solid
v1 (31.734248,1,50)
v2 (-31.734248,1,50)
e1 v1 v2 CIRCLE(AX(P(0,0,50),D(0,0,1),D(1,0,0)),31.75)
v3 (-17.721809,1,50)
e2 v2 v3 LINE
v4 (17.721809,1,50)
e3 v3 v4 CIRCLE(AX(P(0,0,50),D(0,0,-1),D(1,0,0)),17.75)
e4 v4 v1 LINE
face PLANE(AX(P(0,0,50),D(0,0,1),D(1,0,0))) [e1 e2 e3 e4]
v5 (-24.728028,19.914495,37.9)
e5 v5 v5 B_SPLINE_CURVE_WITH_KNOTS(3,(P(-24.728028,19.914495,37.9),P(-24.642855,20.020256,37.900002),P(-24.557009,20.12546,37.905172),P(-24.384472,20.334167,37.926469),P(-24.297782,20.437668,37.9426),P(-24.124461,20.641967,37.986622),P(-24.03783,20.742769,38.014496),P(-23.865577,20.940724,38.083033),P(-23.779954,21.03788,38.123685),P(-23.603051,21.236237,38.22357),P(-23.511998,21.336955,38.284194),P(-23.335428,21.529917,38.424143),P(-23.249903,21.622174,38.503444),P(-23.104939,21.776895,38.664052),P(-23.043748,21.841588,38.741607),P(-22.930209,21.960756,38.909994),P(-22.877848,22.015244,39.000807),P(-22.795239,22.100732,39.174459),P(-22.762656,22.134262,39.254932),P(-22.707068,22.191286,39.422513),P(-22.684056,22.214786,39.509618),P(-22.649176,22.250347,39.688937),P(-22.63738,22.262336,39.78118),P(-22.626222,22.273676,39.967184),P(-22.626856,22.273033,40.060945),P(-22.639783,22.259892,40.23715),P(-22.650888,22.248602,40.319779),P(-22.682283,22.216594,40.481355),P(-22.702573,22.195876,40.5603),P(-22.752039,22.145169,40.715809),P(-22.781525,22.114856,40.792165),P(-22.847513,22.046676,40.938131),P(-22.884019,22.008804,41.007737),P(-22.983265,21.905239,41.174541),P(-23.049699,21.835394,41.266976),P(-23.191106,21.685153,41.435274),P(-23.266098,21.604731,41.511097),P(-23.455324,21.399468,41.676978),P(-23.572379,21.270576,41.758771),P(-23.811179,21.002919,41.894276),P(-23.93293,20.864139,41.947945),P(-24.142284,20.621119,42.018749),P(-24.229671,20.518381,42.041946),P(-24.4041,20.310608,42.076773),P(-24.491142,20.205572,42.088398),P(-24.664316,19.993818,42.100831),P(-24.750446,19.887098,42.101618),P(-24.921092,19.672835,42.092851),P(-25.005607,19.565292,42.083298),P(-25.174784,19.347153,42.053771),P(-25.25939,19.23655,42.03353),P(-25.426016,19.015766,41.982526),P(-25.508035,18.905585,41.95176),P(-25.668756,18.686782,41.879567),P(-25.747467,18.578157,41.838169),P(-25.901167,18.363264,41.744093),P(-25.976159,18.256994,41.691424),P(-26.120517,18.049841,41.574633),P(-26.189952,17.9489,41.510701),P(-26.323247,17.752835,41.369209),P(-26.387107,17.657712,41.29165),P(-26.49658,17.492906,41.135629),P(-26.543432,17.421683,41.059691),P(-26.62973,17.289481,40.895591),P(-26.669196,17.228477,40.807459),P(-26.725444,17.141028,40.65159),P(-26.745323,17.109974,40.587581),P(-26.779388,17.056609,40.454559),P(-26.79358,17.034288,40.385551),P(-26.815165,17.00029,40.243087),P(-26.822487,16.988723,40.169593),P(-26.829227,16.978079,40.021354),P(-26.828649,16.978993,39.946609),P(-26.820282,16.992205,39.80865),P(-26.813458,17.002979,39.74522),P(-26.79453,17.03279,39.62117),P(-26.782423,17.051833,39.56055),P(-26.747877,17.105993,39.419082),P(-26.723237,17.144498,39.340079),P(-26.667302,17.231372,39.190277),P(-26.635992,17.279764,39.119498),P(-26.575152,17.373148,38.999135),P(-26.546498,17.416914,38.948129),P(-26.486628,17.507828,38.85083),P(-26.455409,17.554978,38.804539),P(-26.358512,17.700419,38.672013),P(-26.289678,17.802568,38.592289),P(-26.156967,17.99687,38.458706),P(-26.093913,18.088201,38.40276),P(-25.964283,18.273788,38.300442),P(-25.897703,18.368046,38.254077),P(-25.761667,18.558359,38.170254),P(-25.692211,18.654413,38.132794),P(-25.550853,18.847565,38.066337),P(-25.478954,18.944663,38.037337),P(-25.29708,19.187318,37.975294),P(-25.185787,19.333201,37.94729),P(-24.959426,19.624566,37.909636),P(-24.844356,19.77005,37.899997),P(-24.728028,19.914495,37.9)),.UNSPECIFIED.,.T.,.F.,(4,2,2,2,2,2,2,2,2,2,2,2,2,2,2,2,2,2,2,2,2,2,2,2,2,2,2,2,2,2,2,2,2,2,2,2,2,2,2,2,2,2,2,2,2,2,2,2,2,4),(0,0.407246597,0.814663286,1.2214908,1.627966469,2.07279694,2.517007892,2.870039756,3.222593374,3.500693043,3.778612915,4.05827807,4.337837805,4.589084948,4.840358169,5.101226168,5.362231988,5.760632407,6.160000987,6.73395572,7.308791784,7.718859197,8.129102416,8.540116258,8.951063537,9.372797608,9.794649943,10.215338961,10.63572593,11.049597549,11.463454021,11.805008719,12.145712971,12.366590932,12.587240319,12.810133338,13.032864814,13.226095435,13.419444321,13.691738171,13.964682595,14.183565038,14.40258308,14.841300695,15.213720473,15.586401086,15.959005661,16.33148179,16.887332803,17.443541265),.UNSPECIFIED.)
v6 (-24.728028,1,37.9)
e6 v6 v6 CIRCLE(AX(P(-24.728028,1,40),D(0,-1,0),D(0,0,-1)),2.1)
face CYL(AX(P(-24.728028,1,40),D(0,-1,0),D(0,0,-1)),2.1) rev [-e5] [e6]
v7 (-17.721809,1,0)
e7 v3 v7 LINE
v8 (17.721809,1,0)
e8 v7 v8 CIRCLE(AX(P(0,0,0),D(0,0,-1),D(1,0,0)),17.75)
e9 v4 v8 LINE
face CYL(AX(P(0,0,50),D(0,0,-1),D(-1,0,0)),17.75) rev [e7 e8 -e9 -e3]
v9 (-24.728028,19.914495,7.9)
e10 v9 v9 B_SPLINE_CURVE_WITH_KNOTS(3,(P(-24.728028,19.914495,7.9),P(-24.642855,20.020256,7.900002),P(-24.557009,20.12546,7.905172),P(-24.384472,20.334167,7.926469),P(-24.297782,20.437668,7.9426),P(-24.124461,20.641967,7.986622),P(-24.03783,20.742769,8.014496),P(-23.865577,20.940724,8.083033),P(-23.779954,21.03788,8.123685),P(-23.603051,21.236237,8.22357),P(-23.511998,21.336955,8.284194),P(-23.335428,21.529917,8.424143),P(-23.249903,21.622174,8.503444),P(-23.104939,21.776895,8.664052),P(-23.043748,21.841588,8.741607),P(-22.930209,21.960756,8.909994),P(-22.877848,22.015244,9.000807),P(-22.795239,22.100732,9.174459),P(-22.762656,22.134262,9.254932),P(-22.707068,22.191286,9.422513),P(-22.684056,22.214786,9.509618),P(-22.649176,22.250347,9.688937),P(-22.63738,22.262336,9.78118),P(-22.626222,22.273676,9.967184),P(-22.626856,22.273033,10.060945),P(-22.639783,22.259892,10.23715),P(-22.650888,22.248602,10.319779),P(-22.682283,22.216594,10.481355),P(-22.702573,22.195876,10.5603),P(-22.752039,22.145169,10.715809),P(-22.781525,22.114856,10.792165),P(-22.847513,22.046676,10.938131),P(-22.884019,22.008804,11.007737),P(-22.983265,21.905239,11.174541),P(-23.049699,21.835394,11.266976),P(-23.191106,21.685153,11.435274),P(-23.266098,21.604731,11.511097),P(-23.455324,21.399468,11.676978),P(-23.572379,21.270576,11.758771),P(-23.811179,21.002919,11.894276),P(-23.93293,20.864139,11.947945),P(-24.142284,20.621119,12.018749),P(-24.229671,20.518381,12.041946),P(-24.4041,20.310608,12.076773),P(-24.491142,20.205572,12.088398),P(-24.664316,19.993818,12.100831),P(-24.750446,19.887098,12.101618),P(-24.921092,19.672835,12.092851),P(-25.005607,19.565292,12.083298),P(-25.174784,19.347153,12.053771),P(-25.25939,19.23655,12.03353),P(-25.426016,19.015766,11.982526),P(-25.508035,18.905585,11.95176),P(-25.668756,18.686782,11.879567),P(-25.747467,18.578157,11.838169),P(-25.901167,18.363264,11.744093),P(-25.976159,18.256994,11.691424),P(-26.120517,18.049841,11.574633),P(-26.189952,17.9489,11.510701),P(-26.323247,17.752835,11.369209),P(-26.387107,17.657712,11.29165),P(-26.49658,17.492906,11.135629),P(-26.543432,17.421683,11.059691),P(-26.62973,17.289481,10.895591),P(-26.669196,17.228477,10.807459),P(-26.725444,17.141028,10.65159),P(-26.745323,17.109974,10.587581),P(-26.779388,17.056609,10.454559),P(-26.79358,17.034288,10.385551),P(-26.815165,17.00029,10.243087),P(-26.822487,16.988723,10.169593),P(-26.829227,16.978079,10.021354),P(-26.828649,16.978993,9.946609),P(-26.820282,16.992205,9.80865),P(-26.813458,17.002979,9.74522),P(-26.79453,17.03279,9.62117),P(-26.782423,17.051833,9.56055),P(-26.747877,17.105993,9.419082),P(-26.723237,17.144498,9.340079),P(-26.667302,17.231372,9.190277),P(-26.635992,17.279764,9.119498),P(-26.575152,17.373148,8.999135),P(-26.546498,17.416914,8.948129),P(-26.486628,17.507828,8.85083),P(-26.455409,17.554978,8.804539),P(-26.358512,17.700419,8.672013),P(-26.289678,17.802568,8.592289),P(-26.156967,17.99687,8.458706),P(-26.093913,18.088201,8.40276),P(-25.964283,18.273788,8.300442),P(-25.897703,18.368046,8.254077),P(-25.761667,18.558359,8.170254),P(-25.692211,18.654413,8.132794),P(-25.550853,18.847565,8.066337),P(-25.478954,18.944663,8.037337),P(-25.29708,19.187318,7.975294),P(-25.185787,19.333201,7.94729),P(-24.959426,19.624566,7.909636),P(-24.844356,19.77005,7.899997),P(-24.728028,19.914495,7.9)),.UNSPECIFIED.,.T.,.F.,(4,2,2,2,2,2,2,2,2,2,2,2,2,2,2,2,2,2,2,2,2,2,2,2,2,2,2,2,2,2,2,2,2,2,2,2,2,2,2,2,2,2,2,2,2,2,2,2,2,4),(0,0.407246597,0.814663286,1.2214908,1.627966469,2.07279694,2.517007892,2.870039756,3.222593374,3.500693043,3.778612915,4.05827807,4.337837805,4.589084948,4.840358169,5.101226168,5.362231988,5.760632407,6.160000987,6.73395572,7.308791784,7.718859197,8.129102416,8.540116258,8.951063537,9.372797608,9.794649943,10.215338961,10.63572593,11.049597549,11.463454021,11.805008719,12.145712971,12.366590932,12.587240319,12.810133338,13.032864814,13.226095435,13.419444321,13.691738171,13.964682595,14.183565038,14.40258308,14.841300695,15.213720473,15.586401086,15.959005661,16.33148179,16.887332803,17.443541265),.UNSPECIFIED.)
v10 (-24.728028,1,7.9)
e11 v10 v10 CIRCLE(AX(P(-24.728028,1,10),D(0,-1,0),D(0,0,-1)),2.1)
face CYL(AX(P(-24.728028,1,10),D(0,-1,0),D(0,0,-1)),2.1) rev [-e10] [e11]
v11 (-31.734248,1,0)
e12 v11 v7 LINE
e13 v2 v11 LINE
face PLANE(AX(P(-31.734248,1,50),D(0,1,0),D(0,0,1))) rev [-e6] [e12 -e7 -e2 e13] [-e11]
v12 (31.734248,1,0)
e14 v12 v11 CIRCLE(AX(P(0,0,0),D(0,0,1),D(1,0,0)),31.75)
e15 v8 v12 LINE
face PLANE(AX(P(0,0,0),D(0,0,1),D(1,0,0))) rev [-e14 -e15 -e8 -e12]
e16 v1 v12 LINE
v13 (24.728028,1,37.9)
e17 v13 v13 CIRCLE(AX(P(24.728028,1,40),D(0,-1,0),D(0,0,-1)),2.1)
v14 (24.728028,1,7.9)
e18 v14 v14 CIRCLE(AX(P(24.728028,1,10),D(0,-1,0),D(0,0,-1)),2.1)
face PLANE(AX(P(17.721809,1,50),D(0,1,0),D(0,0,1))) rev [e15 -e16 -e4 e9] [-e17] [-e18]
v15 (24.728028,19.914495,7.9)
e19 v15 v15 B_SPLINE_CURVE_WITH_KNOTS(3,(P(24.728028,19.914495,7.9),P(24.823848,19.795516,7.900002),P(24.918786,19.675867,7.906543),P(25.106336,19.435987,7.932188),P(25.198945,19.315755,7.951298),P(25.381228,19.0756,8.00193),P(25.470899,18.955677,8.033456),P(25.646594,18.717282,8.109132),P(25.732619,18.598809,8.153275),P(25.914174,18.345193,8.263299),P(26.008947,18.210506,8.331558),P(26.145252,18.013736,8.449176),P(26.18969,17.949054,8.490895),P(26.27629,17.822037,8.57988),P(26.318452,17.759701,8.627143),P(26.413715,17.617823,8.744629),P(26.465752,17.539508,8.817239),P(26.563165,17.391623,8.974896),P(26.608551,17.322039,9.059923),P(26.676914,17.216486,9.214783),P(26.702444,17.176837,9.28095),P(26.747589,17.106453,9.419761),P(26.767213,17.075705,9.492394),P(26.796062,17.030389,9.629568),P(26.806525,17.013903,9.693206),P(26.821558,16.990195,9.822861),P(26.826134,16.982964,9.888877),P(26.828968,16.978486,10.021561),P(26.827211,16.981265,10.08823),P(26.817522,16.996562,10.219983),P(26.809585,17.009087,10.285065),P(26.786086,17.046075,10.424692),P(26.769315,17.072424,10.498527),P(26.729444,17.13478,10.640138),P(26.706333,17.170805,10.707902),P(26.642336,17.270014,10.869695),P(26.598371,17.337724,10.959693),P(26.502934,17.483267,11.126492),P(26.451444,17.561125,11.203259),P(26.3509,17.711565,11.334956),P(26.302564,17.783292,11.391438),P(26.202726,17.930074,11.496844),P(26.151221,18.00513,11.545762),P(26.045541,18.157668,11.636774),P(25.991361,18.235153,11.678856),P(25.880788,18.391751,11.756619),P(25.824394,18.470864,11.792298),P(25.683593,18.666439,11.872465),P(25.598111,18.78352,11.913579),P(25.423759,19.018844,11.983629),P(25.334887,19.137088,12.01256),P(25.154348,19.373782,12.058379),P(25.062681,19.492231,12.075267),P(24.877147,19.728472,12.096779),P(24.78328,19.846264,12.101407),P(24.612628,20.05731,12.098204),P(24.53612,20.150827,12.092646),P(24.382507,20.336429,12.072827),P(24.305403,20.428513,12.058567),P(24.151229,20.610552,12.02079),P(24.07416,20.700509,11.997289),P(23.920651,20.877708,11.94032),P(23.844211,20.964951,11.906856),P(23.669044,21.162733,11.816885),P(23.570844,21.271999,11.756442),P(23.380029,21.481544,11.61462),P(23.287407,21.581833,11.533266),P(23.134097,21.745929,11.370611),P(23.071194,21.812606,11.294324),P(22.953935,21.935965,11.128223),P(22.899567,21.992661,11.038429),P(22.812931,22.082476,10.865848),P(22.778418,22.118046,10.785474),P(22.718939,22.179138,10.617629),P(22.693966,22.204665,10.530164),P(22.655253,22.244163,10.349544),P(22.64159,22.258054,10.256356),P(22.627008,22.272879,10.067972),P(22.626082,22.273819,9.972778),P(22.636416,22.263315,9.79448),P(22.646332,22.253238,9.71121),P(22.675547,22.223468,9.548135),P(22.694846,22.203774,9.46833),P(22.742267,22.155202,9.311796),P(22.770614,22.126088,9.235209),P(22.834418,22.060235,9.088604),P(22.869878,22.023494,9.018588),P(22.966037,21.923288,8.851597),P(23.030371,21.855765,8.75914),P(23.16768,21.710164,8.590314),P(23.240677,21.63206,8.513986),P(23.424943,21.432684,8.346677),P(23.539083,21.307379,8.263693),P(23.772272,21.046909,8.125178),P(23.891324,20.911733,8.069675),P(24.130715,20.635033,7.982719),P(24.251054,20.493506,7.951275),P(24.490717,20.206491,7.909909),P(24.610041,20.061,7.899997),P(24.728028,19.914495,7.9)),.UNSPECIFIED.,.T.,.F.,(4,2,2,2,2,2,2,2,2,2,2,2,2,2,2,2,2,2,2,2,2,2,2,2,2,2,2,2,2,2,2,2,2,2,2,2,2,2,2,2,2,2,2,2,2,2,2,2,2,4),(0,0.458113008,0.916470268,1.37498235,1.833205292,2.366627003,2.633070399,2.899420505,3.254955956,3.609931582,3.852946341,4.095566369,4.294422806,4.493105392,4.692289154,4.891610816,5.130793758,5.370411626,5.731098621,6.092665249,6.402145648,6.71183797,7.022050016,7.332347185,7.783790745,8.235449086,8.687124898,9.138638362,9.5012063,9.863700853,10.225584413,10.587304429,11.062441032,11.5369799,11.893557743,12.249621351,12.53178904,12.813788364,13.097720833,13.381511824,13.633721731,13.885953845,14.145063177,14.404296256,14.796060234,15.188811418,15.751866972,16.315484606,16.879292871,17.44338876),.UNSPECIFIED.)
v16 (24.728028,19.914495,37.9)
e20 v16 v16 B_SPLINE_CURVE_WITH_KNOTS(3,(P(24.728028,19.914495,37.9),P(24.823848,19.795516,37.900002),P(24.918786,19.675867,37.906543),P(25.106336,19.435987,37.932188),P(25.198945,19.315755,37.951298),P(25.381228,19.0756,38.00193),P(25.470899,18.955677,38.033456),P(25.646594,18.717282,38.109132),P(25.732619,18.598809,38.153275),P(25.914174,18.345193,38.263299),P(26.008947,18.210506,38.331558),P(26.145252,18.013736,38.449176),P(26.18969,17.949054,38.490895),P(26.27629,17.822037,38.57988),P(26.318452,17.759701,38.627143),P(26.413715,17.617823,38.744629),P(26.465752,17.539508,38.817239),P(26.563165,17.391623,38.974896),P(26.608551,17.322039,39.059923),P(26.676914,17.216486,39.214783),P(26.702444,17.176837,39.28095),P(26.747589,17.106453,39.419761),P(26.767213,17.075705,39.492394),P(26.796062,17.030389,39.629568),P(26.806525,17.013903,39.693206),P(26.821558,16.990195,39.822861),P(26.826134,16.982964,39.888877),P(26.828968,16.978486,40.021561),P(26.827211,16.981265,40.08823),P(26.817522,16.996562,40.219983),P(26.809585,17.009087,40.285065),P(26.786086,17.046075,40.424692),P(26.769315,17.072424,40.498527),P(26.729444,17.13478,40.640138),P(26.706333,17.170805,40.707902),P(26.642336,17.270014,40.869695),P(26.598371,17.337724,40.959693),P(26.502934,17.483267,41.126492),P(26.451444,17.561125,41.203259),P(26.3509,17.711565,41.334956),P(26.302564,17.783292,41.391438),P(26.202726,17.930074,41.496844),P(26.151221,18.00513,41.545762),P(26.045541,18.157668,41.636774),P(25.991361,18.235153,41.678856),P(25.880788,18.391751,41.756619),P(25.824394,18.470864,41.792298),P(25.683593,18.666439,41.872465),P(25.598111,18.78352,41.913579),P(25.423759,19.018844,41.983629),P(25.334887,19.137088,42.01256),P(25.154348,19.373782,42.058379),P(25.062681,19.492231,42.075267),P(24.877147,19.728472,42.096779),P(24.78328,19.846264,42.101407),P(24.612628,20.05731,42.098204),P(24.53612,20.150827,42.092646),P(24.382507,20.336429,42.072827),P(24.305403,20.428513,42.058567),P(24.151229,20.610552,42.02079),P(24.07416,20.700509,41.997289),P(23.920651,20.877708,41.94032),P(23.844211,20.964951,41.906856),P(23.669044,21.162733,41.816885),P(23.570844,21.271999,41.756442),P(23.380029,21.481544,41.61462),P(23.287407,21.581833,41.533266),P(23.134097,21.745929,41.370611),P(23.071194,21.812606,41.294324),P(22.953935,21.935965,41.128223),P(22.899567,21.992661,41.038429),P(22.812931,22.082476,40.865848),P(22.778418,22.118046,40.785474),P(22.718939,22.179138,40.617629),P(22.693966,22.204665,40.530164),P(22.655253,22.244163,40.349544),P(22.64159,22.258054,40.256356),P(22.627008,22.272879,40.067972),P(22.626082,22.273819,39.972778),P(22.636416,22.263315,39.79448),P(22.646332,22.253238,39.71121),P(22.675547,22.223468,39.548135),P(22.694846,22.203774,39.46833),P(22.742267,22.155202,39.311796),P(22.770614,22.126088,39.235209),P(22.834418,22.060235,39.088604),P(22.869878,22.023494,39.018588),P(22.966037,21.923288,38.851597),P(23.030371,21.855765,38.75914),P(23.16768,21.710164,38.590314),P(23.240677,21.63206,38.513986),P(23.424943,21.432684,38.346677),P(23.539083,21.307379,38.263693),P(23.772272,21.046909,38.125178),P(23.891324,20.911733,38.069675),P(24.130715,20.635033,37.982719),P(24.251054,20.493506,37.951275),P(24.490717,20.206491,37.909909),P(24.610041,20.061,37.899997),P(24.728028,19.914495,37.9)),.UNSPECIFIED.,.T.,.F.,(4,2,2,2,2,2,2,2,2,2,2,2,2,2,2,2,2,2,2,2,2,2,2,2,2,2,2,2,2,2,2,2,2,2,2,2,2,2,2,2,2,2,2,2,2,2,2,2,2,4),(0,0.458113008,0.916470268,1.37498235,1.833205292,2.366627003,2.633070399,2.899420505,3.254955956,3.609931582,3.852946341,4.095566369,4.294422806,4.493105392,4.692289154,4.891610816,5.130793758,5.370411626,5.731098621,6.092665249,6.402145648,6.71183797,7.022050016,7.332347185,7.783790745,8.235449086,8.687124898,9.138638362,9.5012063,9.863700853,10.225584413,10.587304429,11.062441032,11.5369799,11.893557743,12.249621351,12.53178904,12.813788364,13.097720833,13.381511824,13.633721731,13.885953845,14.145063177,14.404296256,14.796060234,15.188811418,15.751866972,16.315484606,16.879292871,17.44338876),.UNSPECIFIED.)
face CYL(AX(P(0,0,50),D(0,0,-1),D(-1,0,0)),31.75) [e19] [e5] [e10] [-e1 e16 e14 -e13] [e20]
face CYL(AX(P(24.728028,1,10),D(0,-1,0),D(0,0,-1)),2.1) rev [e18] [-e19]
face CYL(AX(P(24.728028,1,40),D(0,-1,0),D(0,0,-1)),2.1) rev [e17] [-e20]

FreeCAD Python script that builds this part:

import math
import FreeCAD as App
import Part
import Sketcher

V = App.Vector
Q = App.Units.Quantity

doc = App.newDocument("Part")
params = doc.addObject("Spreadsheet::Sheet", "Params")
for row, (alias, value) in enumerate([
    ("sketch1_radius", "17.75 mm"),
    ("sketch1_radius2", "31.75 mm"),
    ("pad1_length", "50 mm"),
    ("sketch2_diameter", "4.2 mm"),
    ("hole_diameter", "4.2 mm"),
], start=1):
    params.set(f"A{row}", alias)
    params.set(f"B{row}", "=" + value)
    params.setAlias(f"B{row}", alias)

body = doc.addObject("PartDesign::Body", "Body")

sketch1 = body.newObject("Sketcher::SketchObject", "Sketch")
sketch1.AttachmentSupport = (doc.getObject("XY_Plane"), [""])
sketch1.MapMode = "FlatFace"
sketch1.addGeometry([
    Part.LineSegment(V(-32, 1, 0), V(-18, 1, 0)),
    Part.ArcOfCircle(Part.Circle(V(0, 0, 0), V(0, 0, 1), 18), math.radians(3), math.radians(177)),
    Part.LineSegment(V(18, 1, 0), V(32, 1, 0)),
    Part.ArcOfCircle(Part.Circle(V(0, 0, 0), V(0, 0, 1), 32), math.radians(2), math.radians(178)),
], False)
sketch1.addConstraint([
    Sketcher.Constraint("Coincident", 0, 2, 1, 2),
    Sketcher.Constraint("Coincident", 1, 1, 2, 1),
    Sketcher.Constraint("Coincident", 2, 2, 3, 1),
    Sketcher.Constraint("Coincident", 3, 2, 0, 1),
    Sketcher.Constraint("Horizontal", 0),
    Sketcher.Constraint("Horizontal", 2),
    Sketcher.Constraint("Coincident", 1, 3, -1, 1),
    Sketcher.Constraint("Coincident", 3, 3, -1, 1),
    Sketcher.Constraint("Horizontal", 0, 2, 1, 1),
    Sketcher.Constraint("Radius", 1, Q("17.75 mm")),
    Sketcher.Constraint("Radius", 3, Q("31.75 mm")),
    Sketcher.Constraint("DistanceY", -1, 1, 0, 2, Q("1 mm")),
])
sketch1.setExpression("Constraints[9]", "Params.sketch1_radius")
sketch1.setExpression("Constraints[10]", "Params.sketch1_radius2")
pad1 = body.newObject("PartDesign::Pad", "Pad")
pad1.Profile = sketch1
pad1.setExpression("Length", "Params.pad1_length")

sketch2 = body.newObject("Sketcher::SketchObject", "Sketch001")
sketch2.AttachmentSupport = (doc.getObject("XZ_Plane"), [""])
sketch2.MapMode = "FlatFace"
sketch2.AttachmentOffset = App.Placement(V(0, 0, -1), App.Rotation())
sketch2.addGeometry([
    Part.Circle(V(-24.7, 40, 0), V(0, 0, 1), 2.1),
    Part.Circle(V(-24.7, 10, 0), V(0, 0, 1), 2.1),
    Part.Circle(V(24.7, 40, 0), V(0, 0, 1), 2.1),
    Part.Circle(V(24.7, 10, 0), V(0, 0, 1), 2.1),
], False)
sketch2.addConstraint([
    Sketcher.Constraint("Equal", 0, 1),
    Sketcher.Constraint("Equal", 1, 2),
    Sketcher.Constraint("Equal", 2, 3),
    Sketcher.Constraint("Symmetric", 0, 3, 2, 3, -2),
    Sketcher.Constraint("Symmetric", 1, 3, 3, 3, -2),
    Sketcher.Constraint("Vertical", 0, 3, 1, 3),
    Sketcher.Constraint("Diameter", 0, Q("4.2 mm")),
    Sketcher.Constraint("DistanceY", -1, 1, 0, 3, Q("40 mm")),
    Sketcher.Constraint("DistanceY", -1, 1, 1, 3, Q("10 mm")),
    Sketcher.Constraint("DistanceX", 0, 3, -1, 1, Q("24.728028 mm")),
])
sketch2.setExpression("Constraints[6]", "Params.sketch2_diameter")
doc.recompute()
hole = body.newObject("PartDesign::Hole", "Hole")
hole.Profile = sketch2
hole.ThreadType = "None"
hole.setExpression("Diameter", "Params.hole_diameter")
hole.DepthType = "ThroughAll"

doc.recompute()
